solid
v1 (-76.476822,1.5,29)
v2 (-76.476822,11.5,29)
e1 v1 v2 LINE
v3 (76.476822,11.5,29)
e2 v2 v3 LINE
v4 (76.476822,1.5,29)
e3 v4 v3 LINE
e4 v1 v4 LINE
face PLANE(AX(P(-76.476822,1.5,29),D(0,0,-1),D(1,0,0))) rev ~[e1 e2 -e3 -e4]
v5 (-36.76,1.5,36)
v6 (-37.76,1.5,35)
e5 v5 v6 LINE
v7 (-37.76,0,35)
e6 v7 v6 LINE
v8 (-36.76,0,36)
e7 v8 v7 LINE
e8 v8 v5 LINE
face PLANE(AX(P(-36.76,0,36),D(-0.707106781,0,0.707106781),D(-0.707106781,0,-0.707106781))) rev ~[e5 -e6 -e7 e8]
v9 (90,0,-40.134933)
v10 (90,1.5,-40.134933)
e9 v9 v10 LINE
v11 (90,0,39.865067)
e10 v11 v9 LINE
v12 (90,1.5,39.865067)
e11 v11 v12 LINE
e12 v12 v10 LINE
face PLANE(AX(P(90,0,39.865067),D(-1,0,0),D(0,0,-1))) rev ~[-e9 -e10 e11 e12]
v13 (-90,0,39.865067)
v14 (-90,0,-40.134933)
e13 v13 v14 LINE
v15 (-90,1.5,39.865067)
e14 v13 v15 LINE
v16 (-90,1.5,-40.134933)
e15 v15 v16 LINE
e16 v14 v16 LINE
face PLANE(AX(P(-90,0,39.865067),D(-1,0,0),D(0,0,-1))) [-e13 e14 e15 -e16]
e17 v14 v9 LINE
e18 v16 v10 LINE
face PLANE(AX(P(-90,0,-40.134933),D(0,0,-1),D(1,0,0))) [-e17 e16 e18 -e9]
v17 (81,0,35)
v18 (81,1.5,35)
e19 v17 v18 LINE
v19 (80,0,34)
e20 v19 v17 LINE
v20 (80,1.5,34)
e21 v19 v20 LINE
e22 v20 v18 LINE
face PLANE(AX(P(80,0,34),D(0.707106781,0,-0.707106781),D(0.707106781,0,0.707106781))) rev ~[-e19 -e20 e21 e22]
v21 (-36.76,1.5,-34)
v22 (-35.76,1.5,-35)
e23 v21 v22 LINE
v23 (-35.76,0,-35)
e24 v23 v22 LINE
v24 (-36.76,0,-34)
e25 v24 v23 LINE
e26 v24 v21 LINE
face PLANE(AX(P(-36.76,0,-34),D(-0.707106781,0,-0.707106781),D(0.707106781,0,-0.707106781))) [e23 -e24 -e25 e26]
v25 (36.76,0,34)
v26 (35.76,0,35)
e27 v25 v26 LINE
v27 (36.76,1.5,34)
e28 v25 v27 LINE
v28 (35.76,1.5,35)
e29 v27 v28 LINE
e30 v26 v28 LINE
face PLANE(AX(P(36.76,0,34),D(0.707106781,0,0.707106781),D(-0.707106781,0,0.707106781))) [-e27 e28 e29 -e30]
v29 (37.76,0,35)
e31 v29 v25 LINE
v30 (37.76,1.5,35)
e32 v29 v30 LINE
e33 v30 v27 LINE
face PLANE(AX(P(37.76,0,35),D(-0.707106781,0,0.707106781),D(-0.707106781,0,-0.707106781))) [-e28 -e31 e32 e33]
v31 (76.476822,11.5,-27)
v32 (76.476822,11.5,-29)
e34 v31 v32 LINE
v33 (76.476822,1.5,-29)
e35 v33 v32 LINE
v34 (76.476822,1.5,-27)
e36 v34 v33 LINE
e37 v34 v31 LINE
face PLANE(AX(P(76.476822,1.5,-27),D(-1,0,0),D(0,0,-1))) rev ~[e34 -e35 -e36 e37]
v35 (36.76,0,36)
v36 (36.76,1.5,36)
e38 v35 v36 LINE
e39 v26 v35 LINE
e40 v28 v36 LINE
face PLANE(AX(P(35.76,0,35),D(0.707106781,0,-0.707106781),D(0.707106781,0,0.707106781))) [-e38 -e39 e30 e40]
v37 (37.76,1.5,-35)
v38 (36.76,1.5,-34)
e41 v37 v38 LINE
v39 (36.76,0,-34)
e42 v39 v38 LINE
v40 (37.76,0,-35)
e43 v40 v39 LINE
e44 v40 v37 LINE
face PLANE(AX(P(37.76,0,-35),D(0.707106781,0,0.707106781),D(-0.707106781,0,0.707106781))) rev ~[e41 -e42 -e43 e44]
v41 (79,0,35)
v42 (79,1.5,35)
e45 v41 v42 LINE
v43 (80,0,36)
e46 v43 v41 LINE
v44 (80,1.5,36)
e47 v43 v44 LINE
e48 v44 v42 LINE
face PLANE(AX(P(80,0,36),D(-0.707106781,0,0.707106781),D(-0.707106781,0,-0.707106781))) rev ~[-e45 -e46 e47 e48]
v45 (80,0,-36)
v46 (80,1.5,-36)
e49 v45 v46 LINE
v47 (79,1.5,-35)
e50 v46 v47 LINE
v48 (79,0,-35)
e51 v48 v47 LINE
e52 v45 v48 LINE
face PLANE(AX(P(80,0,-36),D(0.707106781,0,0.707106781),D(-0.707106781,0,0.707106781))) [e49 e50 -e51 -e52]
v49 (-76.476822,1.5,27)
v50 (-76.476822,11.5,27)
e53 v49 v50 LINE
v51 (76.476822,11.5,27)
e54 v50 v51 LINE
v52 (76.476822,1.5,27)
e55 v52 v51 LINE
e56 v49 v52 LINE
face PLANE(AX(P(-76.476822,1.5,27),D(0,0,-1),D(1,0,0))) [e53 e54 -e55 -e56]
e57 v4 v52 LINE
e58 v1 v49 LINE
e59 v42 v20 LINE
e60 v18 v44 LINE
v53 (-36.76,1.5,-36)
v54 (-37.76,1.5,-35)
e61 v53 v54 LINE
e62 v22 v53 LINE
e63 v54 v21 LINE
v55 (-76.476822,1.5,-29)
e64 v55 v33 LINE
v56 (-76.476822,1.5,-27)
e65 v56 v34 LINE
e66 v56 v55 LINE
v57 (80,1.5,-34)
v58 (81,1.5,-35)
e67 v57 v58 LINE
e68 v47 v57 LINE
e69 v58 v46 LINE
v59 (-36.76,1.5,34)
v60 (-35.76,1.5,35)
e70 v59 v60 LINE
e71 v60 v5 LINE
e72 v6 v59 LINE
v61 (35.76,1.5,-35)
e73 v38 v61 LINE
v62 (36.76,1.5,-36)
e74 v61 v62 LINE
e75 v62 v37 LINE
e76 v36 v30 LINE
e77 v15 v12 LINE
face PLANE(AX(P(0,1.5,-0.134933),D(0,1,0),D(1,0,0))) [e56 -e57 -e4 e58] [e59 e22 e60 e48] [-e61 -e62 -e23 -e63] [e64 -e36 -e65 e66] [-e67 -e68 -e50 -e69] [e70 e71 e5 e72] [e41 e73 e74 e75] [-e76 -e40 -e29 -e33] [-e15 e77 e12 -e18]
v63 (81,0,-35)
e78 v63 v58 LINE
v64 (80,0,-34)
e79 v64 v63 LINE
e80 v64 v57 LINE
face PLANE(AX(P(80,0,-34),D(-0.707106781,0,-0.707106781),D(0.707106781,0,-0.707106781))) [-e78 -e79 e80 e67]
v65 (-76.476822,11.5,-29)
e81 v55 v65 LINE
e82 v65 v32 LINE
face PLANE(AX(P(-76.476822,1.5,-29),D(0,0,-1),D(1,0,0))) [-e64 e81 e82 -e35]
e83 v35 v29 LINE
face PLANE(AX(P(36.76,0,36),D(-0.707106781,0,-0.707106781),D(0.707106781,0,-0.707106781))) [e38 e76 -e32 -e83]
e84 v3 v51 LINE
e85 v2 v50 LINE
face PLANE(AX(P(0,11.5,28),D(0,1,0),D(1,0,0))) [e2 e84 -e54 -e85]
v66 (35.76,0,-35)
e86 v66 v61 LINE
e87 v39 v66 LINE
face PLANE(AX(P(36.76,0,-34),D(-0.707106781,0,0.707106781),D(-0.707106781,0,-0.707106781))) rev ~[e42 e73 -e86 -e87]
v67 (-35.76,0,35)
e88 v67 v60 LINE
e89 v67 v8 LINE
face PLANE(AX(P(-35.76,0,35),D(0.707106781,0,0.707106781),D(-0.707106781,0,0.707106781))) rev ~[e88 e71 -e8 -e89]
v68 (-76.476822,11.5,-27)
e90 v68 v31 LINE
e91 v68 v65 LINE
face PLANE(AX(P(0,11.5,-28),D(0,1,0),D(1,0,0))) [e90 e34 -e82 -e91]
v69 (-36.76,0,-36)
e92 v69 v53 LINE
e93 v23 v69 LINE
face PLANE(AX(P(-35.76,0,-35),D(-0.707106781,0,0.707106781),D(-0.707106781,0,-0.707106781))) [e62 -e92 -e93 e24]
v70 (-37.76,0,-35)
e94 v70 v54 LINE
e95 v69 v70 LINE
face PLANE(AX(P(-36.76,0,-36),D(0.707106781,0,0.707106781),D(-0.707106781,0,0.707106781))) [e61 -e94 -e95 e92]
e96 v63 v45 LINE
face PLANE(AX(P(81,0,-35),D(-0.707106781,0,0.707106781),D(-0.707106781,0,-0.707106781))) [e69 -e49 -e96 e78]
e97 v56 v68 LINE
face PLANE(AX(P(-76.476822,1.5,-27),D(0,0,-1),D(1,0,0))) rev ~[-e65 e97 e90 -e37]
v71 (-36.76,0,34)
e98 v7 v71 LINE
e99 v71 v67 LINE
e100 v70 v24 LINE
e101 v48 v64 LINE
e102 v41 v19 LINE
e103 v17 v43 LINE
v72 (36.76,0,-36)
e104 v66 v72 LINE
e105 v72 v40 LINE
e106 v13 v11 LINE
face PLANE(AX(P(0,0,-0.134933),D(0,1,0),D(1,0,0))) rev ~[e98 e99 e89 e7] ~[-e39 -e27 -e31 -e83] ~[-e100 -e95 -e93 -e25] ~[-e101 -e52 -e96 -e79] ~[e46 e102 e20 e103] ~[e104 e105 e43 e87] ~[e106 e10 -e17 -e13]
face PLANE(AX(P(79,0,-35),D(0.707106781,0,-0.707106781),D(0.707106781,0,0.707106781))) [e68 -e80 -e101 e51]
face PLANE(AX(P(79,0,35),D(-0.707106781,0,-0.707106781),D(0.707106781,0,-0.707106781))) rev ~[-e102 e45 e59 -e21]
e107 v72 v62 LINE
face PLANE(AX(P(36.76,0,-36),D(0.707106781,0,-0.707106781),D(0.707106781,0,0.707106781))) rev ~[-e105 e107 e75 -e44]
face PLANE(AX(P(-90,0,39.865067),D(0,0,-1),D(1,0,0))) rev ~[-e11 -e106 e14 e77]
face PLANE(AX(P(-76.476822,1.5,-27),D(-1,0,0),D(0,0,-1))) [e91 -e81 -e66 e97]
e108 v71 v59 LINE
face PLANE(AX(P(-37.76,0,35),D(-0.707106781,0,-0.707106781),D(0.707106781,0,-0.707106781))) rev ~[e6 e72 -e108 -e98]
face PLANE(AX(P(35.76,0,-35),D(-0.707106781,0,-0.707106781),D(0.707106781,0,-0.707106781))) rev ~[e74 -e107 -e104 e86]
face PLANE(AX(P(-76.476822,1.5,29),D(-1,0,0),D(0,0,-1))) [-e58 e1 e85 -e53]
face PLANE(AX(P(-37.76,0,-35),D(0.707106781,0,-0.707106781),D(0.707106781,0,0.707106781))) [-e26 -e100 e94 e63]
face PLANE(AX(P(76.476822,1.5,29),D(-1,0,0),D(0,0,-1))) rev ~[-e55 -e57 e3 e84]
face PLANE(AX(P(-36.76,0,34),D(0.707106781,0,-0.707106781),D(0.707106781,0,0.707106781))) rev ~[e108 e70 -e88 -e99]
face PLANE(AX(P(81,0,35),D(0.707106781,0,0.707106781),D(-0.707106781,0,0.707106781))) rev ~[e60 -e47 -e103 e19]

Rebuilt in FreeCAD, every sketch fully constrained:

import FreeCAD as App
import Part
import Sketcher
from FreeCAD import Vector
Q = App.Units.Quantity

doc = App.newDocument("Part")
body = doc.addObject("PartDesign::Body", "Body")

# Sketch on XZ plane
sketch1 = doc.addObject("Sketcher::SketchObject", "Sketch")
body.addObject(sketch1)
sketch1.AttachmentSupport = (doc.XZ_Plane, [""])
sketch1.MapMode = "FlatFace"
sketch1.addGeometry([
    Part.LineSegment(Vector(-90, -40.1, 0), Vector(-90, 39.9, 0)),  # 0
    Part.LineSegment(Vector(-90, 39.9, 0), Vector(90, 39.9, 0)),  # 1
    Part.LineSegment(Vector(90, 39.9, 0), Vector(90, -40.1, 0)),  # 2
    Part.LineSegment(Vector(90, -40.1, 0), Vector(-90, -40.1, 0)),  # 3
    Part.LineSegment(Vector(-36.8, 36, 0), Vector(-37.8, 35, 0)),  # 4
    Part.LineSegment(Vector(-37.8, 35, 0), Vector(-36.8, 34, 0)),  # 5
    Part.LineSegment(Vector(-36.8, 34, 0), Vector(-35.8, 35, 0)),  # 6
    Part.LineSegment(Vector(-35.8, 35, 0), Vector(-36.8, 36, 0)),  # 7
    Part.LineSegment(Vector(37.8, 35, 0), Vector(36.8, 36, 0)),  # 8
    Part.LineSegment(Vector(36.8, 36, 0), Vector(35.8, 35, 0)),  # 9
    Part.LineSegment(Vector(35.8, 35, 0), Vector(36.8, 34, 0)),  # 10
    Part.LineSegment(Vector(36.8, 34, 0), Vector(37.8, 35, 0)),  # 11
    Part.LineSegment(Vector(80, 34, 0), Vector(81, 35, 0)),  # 12
    Part.LineSegment(Vector(81, 35, 0), Vector(80, 36, 0)),  # 13
    Part.LineSegment(Vector(80, 36, 0), Vector(79, 35, 0)),  # 14
    Part.LineSegment(Vector(79, 35, 0), Vector(80, 34, 0)),  # 15
    Part.LineSegment(Vector(-35.8, -35, 0), Vector(-36.8, -34, 0)),  # 16
    Part.LineSegment(Vector(-36.8, -34, 0), Vector(-37.8, -35, 0)),  # 17
    Part.LineSegment(Vector(-37.8, -35, 0), Vector(-36.8, -36, 0)),  # 18
    Part.LineSegment(Vector(-36.8, -36, 0), Vector(-35.8, -35, 0)),  # 19
    Part.LineSegment(Vector(36.8, -36, 0), Vector(37.8, -35, 0)),  # 20
    Part.LineSegment(Vector(37.8, -35, 0), Vector(36.8, -34, 0)),  # 21
    Part.LineSegment(Vector(36.8, -34, 0), Vector(35.8, -35, 0)),  # 22
    Part.LineSegment(Vector(35.8, -35, 0), Vector(36.8, -36, 0)),  # 23
    Part.LineSegment(Vector(79, -35, 0), Vector(80, -36, 0)),  # 24
    Part.LineSegment(Vector(80, -36, 0), Vector(81, -35, 0)),  # 25
    Part.LineSegment(Vector(81, -35, 0), Vector(80, -34, 0)),  # 26
    Part.LineSegment(Vector(80, -34, 0), Vector(79, -35, 0)),  # 27
], False)
sketch1.addConstraint([
    Sketcher.Constraint("Coincident", 0, 2, 1, 1),
    Sketcher.Constraint("Coincident", 1, 2, 2, 1),
    Sketcher.Constraint("Coincident", 2, 2, 3, 1),
    Sketcher.Constraint("Coincident", 3, 2, 0, 1),
    Sketcher.Constraint("Coincident", 4, 2, 5, 1),
    Sketcher.Constraint("Coincident", 5, 2, 6, 1),
    Sketcher.Constraint("Coincident", 6, 2, 7, 1),
    Sketcher.Constraint("Coincident", 7, 2, 4, 1),
    Sketcher.Constraint("Coincident", 8, 2, 9, 1),
    Sketcher.Constraint("Coincident", 9, 2, 10, 1),
    Sketcher.Constraint("Coincident", 10, 2, 11, 1),
    Sketcher.Constraint("Coincident", 11, 2, 8, 1),
    Sketcher.Constraint("Coincident", 12, 2, 13, 1),
    Sketcher.Constraint("Coincident", 13, 2, 14, 1),
    Sketcher.Constraint("Coincident", 14, 2, 15, 1),
    Sketcher.Constraint("Coincident", 15, 2, 12, 1),
    Sketcher.Constraint("Coincident", 16, 2, 17, 1),
    Sketcher.Constraint("Coincident", 17, 2, 18, 1),
    Sketcher.Constraint("Coincident", 18, 2, 19, 1),
    Sketcher.Constraint("Coincident", 19, 2, 16, 1),
    Sketcher.Constraint("Coincident", 20, 2, 21, 1),
    Sketcher.Constraint("Coincident", 21, 2, 22, 1),
    Sketcher.Constraint("Coincident", 22, 2, 23, 1),
    Sketcher.Constraint("Coincident", 23, 2, 20, 1),
    Sketcher.Constraint("Coincident", 24, 2, 25, 1),
    Sketcher.Constraint("Coincident", 25, 2, 26, 1),
    Sketcher.Constraint("Coincident", 26, 2, 27, 1),
    Sketcher.Constraint("Coincident", 27, 2, 24, 1),
    Sketcher.Constraint("Vertical", 0),
    Sketcher.Constraint("Horizontal", 1),
    Sketcher.Constraint("Vertical", 2),
    Sketcher.Constraint("Horizontal", 3),
    Sketcher.Constraint("Symmetric", 10, 2, 16, 2, -1, 1),
    Sketcher.Constraint("Symmetric", 11, 2, 17, 2, -1, 1),
    Sketcher.Constraint("Symmetric", 8, 2, 18, 2, -1, 1),
    Sketcher.Constraint("Symmetric", 9, 2, 19, 2, -1, 1),
    Sketcher.Constraint("Symmetric", 4, 2, 20, 2, -1, 1),
    Sketcher.Constraint("Symmetric", 5, 2, 21, 2, -1, 1),
    Sketcher.Constraint("Symmetric", 6, 2, 22, 2, -1, 1),
    Sketcher.Constraint("Symmetric", 7, 2, 23, 2, -1, 1),
    Sketcher.Constraint("Symmetric", 7, 2, 8, 2, -2),
    Sketcher.Constraint("Symmetric", 6, 2, 9, 2, -2),
    Sketcher.Constraint("Symmetric", 5, 2, 10, 2, -2),
    Sketcher.Constraint("Symmetric", 4, 2, 11, 2, -2),
    Sketcher.Constraint("Symmetric", 13, 2, 24, 2, -1),
    Sketcher.Constraint("Symmetric", 12, 2, 25, 2, -1),
    Sketcher.Constraint("Symmetric", 15, 2, 26, 2, -1),
    Sketcher.Constraint("Symmetric", 14, 2, 27, 2, -1),
    Sketcher.Constraint("Perpendicular", 4, 5),
    Sketcher.Constraint("Perpendicular", 5, 6),
    Sketcher.Constraint("Perpendicular", 6, 7),
    Sketcher.Constraint("Parallel", 7, 8),
    Sketcher.Constraint("Parallel", 11, 12),
    Sketcher.Constraint("Perpendicular", 12, 13),
    Sketcher.Constraint("Perpendicular", 13, 14),
    Sketcher.Constraint("Perpendicular", 14, 15),
    Sketcher.Constraint("Horizontal", 4, 2, 6, 2),
    Sketcher.Constraint("Horizontal", 11, 2, 12, 2),
    Sketcher.Constraint("Horizontal", 8, 2, 13, 2),
    Sketcher.Constraint("Horizontal", 12, 2, 14, 2),
    Sketcher.Constraint("DistanceX", 1, 1, 1, 2, Q("180 mm")),
    Sketcher.Constraint("DistanceY", 0, 1, 0, 2, Q("80 mm")),
    Sketcher.Constraint("DistanceX", 0, 2, -1, 1, Q("90 mm")),
    Sketcher.Constraint("DistanceY", -1, 1, 4, 2, Q("35 mm")),
    Sketcher.Constraint("DistanceY", -1, 1, 5, 2, Q("34 mm")),
    Sketcher.Constraint("DistanceX", -1, 1, 12, 2, Q("81 mm")),
    Sketcher.Constraint("DistanceX", 4, 2, -1, 1, Q("37.76 mm")),
    Sketcher.Constraint("DistanceY", -1, 1, 0, 2, Q("39.865067 mm")),
])
pad1 = doc.addObject("PartDesign::Pad", "Pad")
body.addObject(pad1)
pad1.Profile = sketch1
pad1.Length = 1.5
pad1.Reversed = True

# Sketch on XZ plane
sketch2 = doc.addObject("Sketcher::SketchObject", "Sketch001")
body.addObject(sketch2)
sketch2.AttachmentSupport = (doc.XZ_Plane, [""])
sketch2.MapMode = "FlatFace"
sketch2.AttachmentOffset = App.Placement(Vector(0, 0, -1.5), App.Rotation())
sketch2.addGeometry([
    Part.LineSegment(Vector(-76.5, -29, 0), Vector(-76.5, -27, 0)),  # 0
    Part.LineSegment(Vector(-76.5, -27, 0), Vector(76.5, -27, 0)),  # 1
    Part.LineSegment(Vector(76.5, -27, 0), Vector(76.5, -29, 0)),  # 2
    Part.LineSegment(Vector(76.5, -29, 0), Vector(-76.5, -29, 0)),  # 3
    Part.LineSegment(Vector(-76.5, 27, 0), Vector(-76.5, 29, 0)),  # 4
    Part.LineSegment(Vector(-76.5, 29, 0), Vector(76.5, 29, 0)),  # 5
    Part.LineSegment(Vector(76.5, 29, 0), Vector(76.5, 27, 0)),  # 6
    Part.LineSegment(Vector(76.5, 27, 0), Vector(-76.5, 27, 0)),  # 7
], False)
sketch2.addConstraint([
    Sketcher.Constraint("Coincident", 0, 2, 1, 1),
    Sketcher.Constraint("Coincident", 1, 2, 2, 1),
    Sketcher.Constraint("Coincident", 2, 2, 3, 1),
    Sketcher.Constraint("Coincident", 3, 2, 0, 1),
    Sketcher.Constraint("Coincident", 4, 2, 5, 1),
    Sketcher.Constraint("Coincident", 5, 2, 6, 1),
    Sketcher.Constraint("Coincident", 6, 2, 7, 1),
    Sketcher.Constraint("Coincident", 7, 2, 4, 1),
    Sketcher.Constraint("Vertical", 0),
    Sketcher.Constraint("Horizontal", 1),
    Sketcher.Constraint("Vertical", 2),
    Sketcher.Constraint("Horizontal", 3),
    Sketcher.Constraint("Vertical", 4),
    Sketcher.Constraint("Horizontal", 5),
    Sketcher.Constraint("Vertical", 6),
    Sketcher.Constraint("Horizontal", 7),
    Sketcher.Constraint("Symmetric", 2, 2, 4, 2, -1, 1),
    Sketcher.Constraint("Symmetric", 0, 2, 6, 2, -1, 1),
    Sketcher.Constraint("Vertical", 3, 2, 4, 2),
    Sketcher.Constraint("DistanceY", 0, 1, 0, 2, Q("2 mm")),
    Sketcher.Constraint("DistanceY", 0, 2, -1, 1, Q("27 mm")),
    Sketcher.Constraint("DistanceX", 1, 1, 1, 2, Q("152.953645 mm")),
])
pad2 = doc.addObject("PartDesign::Pad", "Pad001")
body.addObject(pad2)
pad2.Profile = sketch2
pad2.Length = 10
pad2.Reversed = True

doc.recompute()
